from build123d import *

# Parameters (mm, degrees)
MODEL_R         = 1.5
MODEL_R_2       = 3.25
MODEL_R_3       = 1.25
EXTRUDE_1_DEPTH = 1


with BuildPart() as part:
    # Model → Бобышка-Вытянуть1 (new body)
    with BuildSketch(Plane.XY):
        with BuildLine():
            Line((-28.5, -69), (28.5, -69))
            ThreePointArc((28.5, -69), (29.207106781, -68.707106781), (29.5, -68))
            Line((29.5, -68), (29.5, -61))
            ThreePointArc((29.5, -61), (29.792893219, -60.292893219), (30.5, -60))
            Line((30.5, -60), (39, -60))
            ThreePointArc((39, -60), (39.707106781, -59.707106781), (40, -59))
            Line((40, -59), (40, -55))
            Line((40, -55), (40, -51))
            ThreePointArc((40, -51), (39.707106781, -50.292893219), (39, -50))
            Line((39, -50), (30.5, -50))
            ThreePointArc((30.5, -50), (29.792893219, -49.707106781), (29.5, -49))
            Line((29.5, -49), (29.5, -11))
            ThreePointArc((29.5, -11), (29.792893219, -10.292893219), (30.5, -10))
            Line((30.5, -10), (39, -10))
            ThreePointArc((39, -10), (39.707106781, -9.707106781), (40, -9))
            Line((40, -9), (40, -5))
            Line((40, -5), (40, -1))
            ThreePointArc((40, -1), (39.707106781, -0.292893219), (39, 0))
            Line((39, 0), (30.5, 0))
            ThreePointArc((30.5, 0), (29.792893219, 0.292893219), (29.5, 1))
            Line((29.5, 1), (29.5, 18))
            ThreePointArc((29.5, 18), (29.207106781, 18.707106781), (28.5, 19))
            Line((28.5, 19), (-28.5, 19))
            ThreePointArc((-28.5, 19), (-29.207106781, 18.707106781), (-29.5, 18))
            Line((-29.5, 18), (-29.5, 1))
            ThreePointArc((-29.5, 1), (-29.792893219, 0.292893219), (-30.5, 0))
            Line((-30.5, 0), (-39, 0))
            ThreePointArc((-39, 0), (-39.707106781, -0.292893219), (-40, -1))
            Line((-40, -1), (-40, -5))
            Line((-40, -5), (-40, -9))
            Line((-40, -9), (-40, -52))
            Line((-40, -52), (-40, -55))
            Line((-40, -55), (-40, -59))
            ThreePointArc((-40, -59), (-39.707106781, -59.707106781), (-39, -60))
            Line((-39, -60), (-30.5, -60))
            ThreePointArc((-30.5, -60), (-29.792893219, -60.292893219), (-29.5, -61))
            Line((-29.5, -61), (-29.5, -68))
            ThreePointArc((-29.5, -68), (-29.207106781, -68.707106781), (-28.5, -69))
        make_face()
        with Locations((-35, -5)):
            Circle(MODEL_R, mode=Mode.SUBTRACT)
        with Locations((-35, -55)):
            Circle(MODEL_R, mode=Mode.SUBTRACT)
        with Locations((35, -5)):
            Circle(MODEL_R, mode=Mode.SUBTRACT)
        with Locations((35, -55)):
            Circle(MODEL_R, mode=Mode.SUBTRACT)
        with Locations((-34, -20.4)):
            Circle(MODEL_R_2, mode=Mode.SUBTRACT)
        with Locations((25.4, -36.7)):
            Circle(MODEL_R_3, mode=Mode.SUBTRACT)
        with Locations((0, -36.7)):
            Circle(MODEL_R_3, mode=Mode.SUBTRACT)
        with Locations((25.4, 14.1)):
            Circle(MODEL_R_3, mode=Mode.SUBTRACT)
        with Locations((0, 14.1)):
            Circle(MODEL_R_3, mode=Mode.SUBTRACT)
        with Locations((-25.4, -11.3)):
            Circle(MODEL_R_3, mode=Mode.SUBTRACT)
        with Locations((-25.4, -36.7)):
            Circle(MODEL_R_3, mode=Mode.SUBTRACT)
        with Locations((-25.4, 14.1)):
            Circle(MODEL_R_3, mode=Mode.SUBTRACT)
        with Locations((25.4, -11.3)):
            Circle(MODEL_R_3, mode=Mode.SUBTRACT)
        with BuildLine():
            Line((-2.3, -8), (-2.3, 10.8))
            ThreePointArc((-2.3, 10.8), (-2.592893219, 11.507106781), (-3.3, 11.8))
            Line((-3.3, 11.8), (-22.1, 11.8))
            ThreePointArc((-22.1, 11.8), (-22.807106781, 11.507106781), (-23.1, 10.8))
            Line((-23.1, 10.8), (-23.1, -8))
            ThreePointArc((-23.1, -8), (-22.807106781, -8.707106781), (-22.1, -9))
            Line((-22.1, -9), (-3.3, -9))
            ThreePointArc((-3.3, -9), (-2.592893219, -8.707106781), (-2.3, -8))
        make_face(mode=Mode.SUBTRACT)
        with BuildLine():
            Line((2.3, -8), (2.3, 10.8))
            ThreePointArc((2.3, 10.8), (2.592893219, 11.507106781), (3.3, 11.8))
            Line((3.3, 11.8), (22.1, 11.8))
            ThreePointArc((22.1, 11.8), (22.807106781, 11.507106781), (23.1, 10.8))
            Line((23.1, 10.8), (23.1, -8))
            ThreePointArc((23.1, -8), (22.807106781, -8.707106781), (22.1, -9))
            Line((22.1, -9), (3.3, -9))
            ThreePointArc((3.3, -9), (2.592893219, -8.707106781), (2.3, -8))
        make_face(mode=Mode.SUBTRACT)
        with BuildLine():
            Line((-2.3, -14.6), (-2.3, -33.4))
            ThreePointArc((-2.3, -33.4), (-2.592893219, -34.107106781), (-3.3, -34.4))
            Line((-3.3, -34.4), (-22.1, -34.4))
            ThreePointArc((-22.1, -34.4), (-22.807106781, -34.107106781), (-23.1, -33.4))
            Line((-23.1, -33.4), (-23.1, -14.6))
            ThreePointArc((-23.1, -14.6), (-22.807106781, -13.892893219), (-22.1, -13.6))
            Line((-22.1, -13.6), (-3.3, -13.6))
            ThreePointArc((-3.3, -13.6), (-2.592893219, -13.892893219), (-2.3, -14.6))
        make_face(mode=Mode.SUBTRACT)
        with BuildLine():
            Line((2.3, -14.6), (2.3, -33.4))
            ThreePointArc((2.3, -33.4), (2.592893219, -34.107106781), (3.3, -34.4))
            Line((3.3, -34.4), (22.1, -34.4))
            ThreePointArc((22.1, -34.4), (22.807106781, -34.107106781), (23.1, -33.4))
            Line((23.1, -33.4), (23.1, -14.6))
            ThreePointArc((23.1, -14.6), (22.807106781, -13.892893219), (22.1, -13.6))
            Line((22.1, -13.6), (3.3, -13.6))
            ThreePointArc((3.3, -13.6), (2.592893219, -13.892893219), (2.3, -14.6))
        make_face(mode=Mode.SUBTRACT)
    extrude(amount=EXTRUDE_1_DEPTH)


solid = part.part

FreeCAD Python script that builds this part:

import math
import FreeCAD as App
import Part
import Sketcher

doc = App.newDocument("Part")
body = doc.addObject("PartDesign::Body", "Body")

# Sketch on XY plane
sketch1 = body.newObject("Sketcher::SketchObject", "Sketch")
sketch1.AttachmentSupport = (doc.getObject("XY_Plane"), [""])
sketch1.MapMode = "FlatFace"
sketch1.addGeometry(Part.LineSegment(App.Vector(-28.5, -69, 0), App.Vector(28.5, -69, 0)), False)
sketch1.addGeometry(Part.ArcOfCircle(Part.Circle(App.Vector(28.5, -68, 0), App.Vector(0, 0, 1), 1), math.radians(-90), math.radians(0)), False)
sketch1.addGeometry(Part.LineSegment(App.Vector(29.5, -68, 0), App.Vector(29.5, -61, 0)), False)
sketch1.addGeometry(Part.ArcOfCircle(Part.Circle(App.Vector(30.5, -61, 0), App.Vector(0, 0, 1), 1), math.radians(90), math.radians(180)), False)
sketch1.addGeometry(Part.LineSegment(App.Vector(30.5, -60, 0), App.Vector(39, -60, 0)), False)
sketch1.addGeometry(Part.ArcOfCircle(Part.Circle(App.Vector(39, -59, 0), App.Vector(0, 0, 1), 1), math.radians(-90), math.radians(0)), False)
sketch1.addGeometry(Part.LineSegment(App.Vector(40, -59, 0), App.Vector(40, -51, 0)), False)
sketch1.addGeometry(Part.ArcOfCircle(Part.Circle(App.Vector(39, -51, 0), App.Vector(0, 0, 1), 1), math.radians(0), math.radians(90)), False)
sketch1.addGeometry(Part.LineSegment(App.Vector(39, -50, 0), App.Vector(30.5, -50, 0)), False)
sketch1.addGeometry(Part.ArcOfCircle(Part.Circle(App.Vector(30.5, -49, 0), App.Vector(0, 0, 1), 1), math.radians(-180), math.radians(-90)), False)
sketch1.addGeometry(Part.LineSegment(App.Vector(29.5, -49, 0), App.Vector(29.5, -11, 0)), False)
sketch1.addGeometry(Part.ArcOfCircle(Part.Circle(App.Vector(30.5, -11, 0), App.Vector(0, 0, 1), 1), math.radians(90), math.radians(180)), False)
sketch1.addGeometry(Part.LineSegment(App.Vector(30.5, -10, 0), App.Vector(39, -10, 0)), False)
sketch1.addGeometry(Part.ArcOfCircle(Part.Circle(App.Vector(39, -9, 0), App.Vector(0, 0, 1), 1), math.radians(-90), math.radians(0)), False)
sketch1.addGeometry(Part.LineSegment(App.Vector(40, -9, 0), App.Vector(40, -1, 0)), False)
sketch1.addGeometry(Part.ArcOfCircle(Part.Circle(App.Vector(39, -1, 0), App.Vector(0, 0, 1), 1), math.radians(0), math.radians(90)), False)
sketch1.addGeometry(Part.LineSegment(App.Vector(39, 0, 0), App.Vector(30.5, 0, 0)), False)
sketch1.addGeometry(Part.ArcOfCircle(Part.Circle(App.Vector(30.5, 1, 0), App.Vector(0, 0, 1), 1), math.radians(-180), math.radians(-90)), False)
sketch1.addGeometry(Part.LineSegment(App.Vector(29.5, 1, 0), App.Vector(29.5, 18, 0)), False)
sketch1.addGeometry(Part.ArcOfCircle(Part.Circle(App.Vector(28.5, 18, 0), App.Vector(0, 0, 1), 1), math.radians(0), math.radians(90)), False)
sketch1.addGeometry(Part.LineSegment(App.Vector(28.5, 19, 0), App.Vector(-28.5, 19, 0)), False)
sketch1.addGeometry(Part.ArcOfCircle(Part.Circle(App.Vector(-28.5, 18, 0), App.Vector(0, 0, 1), 1), math.radians(90), math.radians(180)), False)
sketch1.addGeometry(Part.LineSegment(App.Vector(-29.5, 18, 0), App.Vector(-29.5, 1, 0)), False)
sketch1.addGeometry(Part.ArcOfCircle(Part.Circle(App.Vector(-30.5, 1, 0), App.Vector(0, 0, 1), 1), math.radians(-90), math.radians(0)), False)
sketch1.addGeometry(Part.LineSegment(App.Vector(-30.5, 0, 0), App.Vector(-39, 0, 0)), False)
sketch1.addGeometry(Part.ArcOfCircle(Part.Circle(App.Vector(-39, -1, 0), App.Vector(0, 0, 1), 1), math.radians(90), math.radians(180)), False)
sketch1.addGeometry(Part.LineSegment(App.Vector(-40, -1, 0), App.Vector(-40, -59, 0)), False)
sketch1.addGeometry(Part.ArcOfCircle(Part.Circle(App.Vector(-39, -59, 0), App.Vector(0, 0, 1), 1), math.radians(-180), math.radians(-90)), False)
sketch1.addGeometry(Part.LineSegment(App.Vector(-39, -60, 0), App.Vector(-30.5, -60, 0)), False)
sketch1.addGeometry(Part.ArcOfCircle(Part.Circle(App.Vector(-30.5, -61, 0), App.Vector(0, 0, 1), 1), math.radians(0), math.radians(90)), False)
sketch1.addGeometry(Part.LineSegment(App.Vector(-29.5, -61, 0), App.Vector(-29.5, -68, 0)), False)
sketch1.addGeometry(Part.ArcOfCircle(Part.Circle(App.Vector(-28.5, -68, 0), App.Vector(0, 0, 1), 1), math.radians(-180), math.radians(-90)), False)
sketch1.addGeometry(Part.Circle(App.Vector(-35, -55, 0), App.Vector(0, 0, 1), 1.5), False)
sketch1.addGeometry(Part.Circle(App.Vector(-25.4, -36.7, 0), App.Vector(0, 0, 1), 1.2), False)
sketch1.addGeometry(Part.ArcOfCircle(Part.Circle(App.Vector(-3.3, -14.6, 0), App.Vector(0, 0, 1), 1), math.radians(0), math.radians(90)), False)
sketch1.addGeometry(Part.LineSegment(App.Vector(-2.3, -14.6, 0), App.Vector(-2.3, -33.4, 0)), False)
sketch1.addGeometry(Part.ArcOfCircle(Part.Circle(App.Vector(-3.3, -33.4, 0), App.Vector(0, 0, 1), 1), math.radians(-90), math.radians(0)), False)
sketch1.addGeometry(Part.LineSegment(App.Vector(-3.3, -34.4, 0), App.Vector(-22.1, -34.4, 0)), False)
sketch1.addGeometry(Part.ArcOfCircle(Part.Circle(App.Vector(-22.1, -33.4, 0), App.Vector(0, 0, 1), 1), math.radians(-180), math.radians(-90)), False)
sketch1.addGeometry(Part.LineSegment(App.Vector(-23.1, -33.4, 0), App.Vector(-23.1, -14.6, 0)), False)
sketch1.addGeometry(Part.ArcOfCircle(Part.Circle(App.Vector(-22.1, -14.6, 0), App.Vector(0, 0, 1), 1), math.radians(90), math.radians(180)), False)
sketch1.addGeometry(Part.LineSegment(App.Vector(-22.1, -13.6, 0), App.Vector(-3.3, -13.6, 0)), False)
sketch1.addGeometry(Part.Circle(App.Vector(35, -55, 0), App.Vector(0, 0, 1), 1.5), False)
sketch1.addGeometry(Part.Circle(App.Vector(0, -36.7, 0), App.Vector(0, 0, 1), 1.2), False)
sketch1.addGeometry(Part.LineSegment(App.Vector(2.3, -33.4, 0), App.Vector(2.3, -14.6, 0)), False)
sketch1.addGeometry(Part.ArcOfCircle(Part.Circle(App.Vector(3.3, -14.6, 0), App.Vector(0, 0, 1), 1), math.radians(90), math.radians(180)), False)
sketch1.addGeometry(Part.LineSegment(App.Vector(3.3, -13.6, 0), App.Vector(22.1, -13.6, 0)), False)
sketch1.addGeometry(Part.ArcOfCircle(Part.Circle(App.Vector(22.1, -14.6, 0), App.Vector(0, 0, 1), 1), math.radians(0), math.radians(90)), False)
sketch1.addGeometry(Part.LineSegment(App.Vector(23.1, -14.6, 0), App.Vector(23.1, -33.4, 0)), False)
sketch1.addGeometry(Part.ArcOfCircle(Part.Circle(App.Vector(22.1, -33.4, 0), App.Vector(0, 0, 1), 1), math.radians(-90), math.radians(0)), False)
sketch1.addGeometry(Part.LineSegment(App.Vector(22.1, -34.4, 0), App.Vector(3.3, -34.4, 0)), False)
sketch1.addGeometry(Part.ArcOfCircle(Part.Circle(App.Vector(3.3, -33.4, 0), App.Vector(0, 0, 1), 1), math.radians(-180), math.radians(-90)), False)
sketch1.addGeometry(Part.Circle(App.Vector(25.4, -36.7, 0), App.Vector(0, 0, 1), 1.2), False)
sketch1.addGeometry(Part.Circle(App.Vector(-34, -20.4, 0), App.Vector(0, 0, 1), 3.2), False)
sketch1.addGeometry(Part.Circle(App.Vector(-35, -5, 0), App.Vector(0, 0, 1), 1.5), False)
sketch1.addGeometry(Part.Circle(App.Vector(-25.4, -11.3, 0), App.Vector(0, 0, 1), 1.2), False)
sketch1.addGeometry(Part.Circle(App.Vector(-25.4, 14.1, 0), App.Vector(0, 0, 1), 1.2), False)
sketch1.addGeometry(Part.LineSegment(App.Vector(-2.3, 10.8, 0), App.Vector(-2.3, -8, 0)), False)
sketch1.addGeometry(Part.ArcOfCircle(Part.Circle(App.Vector(-3.3, -8, 0), App.Vector(0, 0, 1), 1), math.radians(-90), math.radians(0)), False)
sketch1.addGeometry(Part.LineSegment(App.Vector(-3.3, -9, 0), App.Vector(-22.1, -9, 0)), False)
sketch1.addGeometry(Part.ArcOfCircle(Part.Circle(App.Vector(-22.1, -8, 0), App.Vector(0, 0, 1), 1), math.radians(-180), math.radians(-90)), False)
sketch1.addGeometry(Part.LineSegment(App.Vector(-23.1, -8, 0), App.Vector(-23.1, 10.8, 0)), False)
sketch1.addGeometry(Part.ArcOfCircle(Part.Circle(App.Vector(-22.1, 10.8, 0), App.Vector(0, 0, 1), 1), math.radians(90), math.radians(180)), False)
sketch1.addGeometry(Part.LineSegment(App.Vector(-22.1, 11.8, 0), App.Vector(-3.3, 11.8, 0)), False)
sketch1.addGeometry(Part.ArcOfCircle(Part.Circle(App.Vector(-3.3, 10.8, 0), App.Vector(0, 0, 1), 1), math.radians(0), math.radians(90)), False)
sketch1.addGeometry(Part.Circle(App.Vector(25.4, -11.3, 0), App.Vector(0, 0, 1), 1.2), False)
sketch1.addGeometry(Part.Circle(App.Vector(35, -5, 0), App.Vector(0, 0, 1), 1.5), False)
sketch1.addGeometry(Part.ArcOfCircle(Part.Circle(App.Vector(3.3, -8, 0), App.Vector(0, 0, 1), 1), math.radians(-180), math.radians(-90)), False)
sketch1.addGeometry(Part.LineSegment(App.Vector(2.3, -8, 0), App.Vector(2.3, 10.8, 0)), False)
sketch1.addGeometry(Part.ArcOfCircle(Part.Circle(App.Vector(3.3, 10.8, 0), App.Vector(0, 0, 1), 1), math.radians(90), math.radians(180)), False)
sketch1.addGeometry(Part.LineSegment(App.Vector(3.3, 11.8, 0), App.Vector(22.1, 11.8, 0)), False)
sketch1.addGeometry(Part.ArcOfCircle(Part.Circle(App.Vector(22.1, 10.8, 0), App.Vector(0, 0, 1), 1), math.radians(0), math.radians(90)), False)
sketch1.addGeometry(Part.LineSegment(App.Vector(23.1, 10.8, 0), App.Vector(23.1, -8, 0)), False)
sketch1.addGeometry(Part.ArcOfCircle(Part.Circle(App.Vector(22.1, -8, 0), App.Vector(0, 0, 1), 1), math.radians(-90), math.radians(0)), False)
sketch1.addGeometry(Part.LineSegment(App.Vector(22.1, -9, 0), App.Vector(3.3, -9, 0)), False)
sketch1.addGeometry(Part.Circle(App.Vector(0, 14.1, 0), App.Vector(0, 0, 1), 1.2), False)
sketch1.addGeometry(Part.Circle(App.Vector(25.4, 14.1, 0), App.Vector(0, 0, 1), 1.2), False)
sketch1.addConstraint(Sketcher.Constraint("Tangent", 0, 2, 1, 1))
sketch1.addConstraint(Sketcher.Constraint("Tangent", 1, 2, 2, 1))
sketch1.addConstraint(Sketcher.Constraint("Tangent", 2, 2, 3, 2))
sketch1.addConstraint(Sketcher.Constraint("Tangent", 3, 1, 4, 1))
sketch1.addConstraint(Sketcher.Constraint("Tangent", 4, 2, 5, 1))
sketch1.addConstraint(Sketcher.Constraint("Tangent", 5, 2, 6, 1))
sketch1.addConstraint(Sketcher.Constraint("Tangent", 6, 2, 7, 1))
sketch1.addConstraint(Sketcher.Constraint("Tangent", 7, 2, 8, 1))
sketch1.addConstraint(Sketcher.Constraint("Tangent", 8, 2, 9, 2))
sketch1.addConstraint(Sketcher.Constraint("Tangent", 9, 1, 10, 1))
sketch1.addConstraint(Sketcher.Constraint("Tangent", 10, 2, 11, 2))
sketch1.addConstraint(Sketcher.Constraint("Tangent", 11, 1, 12, 1))
sketch1.addConstraint(Sketcher.Constraint("Tangent", 12, 2, 13, 1))
sketch1.addConstraint(Sketcher.Constraint("Tangent", 13, 2, 14, 1))
sketch1.addConstraint(Sketcher.Constraint("Tangent", 14, 2, 15, 1))
sketch1.addConstraint(Sketcher.Constraint("Tangent", 15, 2, 16, 1))
sketch1.addConstraint(Sketcher.Constraint("Tangent", 16, 2, 17, 2))
sketch1.addConstraint(Sketcher.Constraint("Tangent", 17, 1, 18, 1))
sketch1.addConstraint(Sketcher.Constraint("Tangent", 18, 2, 19, 1))
sketch1.addConstraint(Sketcher.Constraint("Tangent", 19, 2, 20, 1))
sketch1.addConstraint(Sketcher.Constraint("Tangent", 20, 2, 21, 1))
sketch1.addConstraint(Sketcher.Constraint("Tangent", 21, 2, 22, 1))
sketch1.addConstraint(Sketcher.Constraint("Tangent", 22, 2, 23, 2))
sketch1.addConstraint(Sketcher.Constraint("Tangent", 23, 1, 24, 1))
sketch1.addConstraint(Sketcher.Constraint("Tangent", 24, 2, 25, 1))
sketch1.addConstraint(Sketcher.Constraint("Tangent", 25, 2, 26, 1))
sketch1.addConstraint(Sketcher.Constraint("Tangent", 26, 2, 27, 1))
sketch1.addConstraint(Sketcher.Constraint("Tangent", 27, 2, 28, 1))
sketch1.addConstraint(Sketcher.Constraint("Tangent", 28, 2, 29, 2))
sketch1.addConstraint(Sketcher.Constraint("Tangent", 29, 1, 30, 1))
sketch1.addConstraint(Sketcher.Constraint("Tangent", 30, 2, 31, 1))
sketch1.addConstraint(Sketcher.Constraint("Tangent", 31, 2, 0, 1))
sketch1.addConstraint(Sketcher.Constraint("Tangent", 34, 1, 35, 1))
sketch1.addConstraint(Sketcher.Constraint("Tangent", 35, 2, 36, 2))
sketch1.addConstraint(Sketcher.Constraint("Tangent", 36, 1, 37, 1))
sketch1.addConstraint(Sketcher.Constraint("Tangent", 37, 2, 38, 2))
sketch1.addConstraint(Sketcher.Constraint("Tangent", 38, 1, 39, 1))
sketch1.addConstraint(Sketcher.Constraint("Tangent", 39, 2, 40, 2))
sketch1.addConstraint(Sketcher.Constraint("Tangent", 40, 1, 41, 1))
sketch1.addConstraint(Sketcher.Constraint("Tangent", 41, 2, 34, 2))
sketch1.addConstraint(Sketcher.Constraint("Tangent", 44, 2, 45, 2))
sketch1.addConstraint(Sketcher.Constraint("Tangent", 45, 1, 46, 1))
sketch1.addConstraint(Sketcher.Constraint("Tangent", 46, 2, 47, 2))
sketch1.addConstraint(Sketcher.Constraint("Tangent", 47, 1, 48, 1))
sketch1.addConstraint(Sketcher.Constraint("Tangent", 48, 2, 49, 2))
sketch1.addConstraint(Sketcher.Constraint("Tangent", 49, 1, 50, 1))
sketch1.addConstraint(Sketcher.Constraint("Tangent", 50, 2, 51, 2))
sketch1.addConstraint(Sketcher.Constraint("Tangent", 51, 1, 44, 1))
sketch1.addConstraint(Sketcher.Constraint("Tangent", 57, 2, 58, 2))
sketch1.addConstraint(Sketcher.Constraint("Tangent", 58, 1, 59, 1))
sketch1.addConstraint(Sketcher.Constraint("Tangent", 59, 2, 60, 2))
sketch1.addConstraint(Sketcher.Constraint("Tangent", 60, 1, 61, 1))
sketch1.addConstraint(Sketcher.Constraint("Tangent", 61, 2, 62, 2))
sketch1.addConstraint(Sketcher.Constraint("Tangent", 62, 1, 63, 1))
sketch1.addConstraint(Sketcher.Constraint("Tangent", 63, 2, 64, 2))
sketch1.addConstraint(Sketcher.Constraint("Tangent", 64, 1, 57, 1))
sketch1.addConstraint(Sketcher.Constraint("Tangent", 67, 1, 68, 1))
sketch1.addConstraint(Sketcher.Constraint("Tangent", 68, 2, 69, 2))
sketch1.addConstraint(Sketcher.Constraint("Tangent", 69, 1, 70, 1))
sketch1.addConstraint(Sketcher.Constraint("Tangent", 70, 2, 71, 2))
sketch1.addConstraint(Sketcher.Constraint("Tangent", 71, 1, 72, 1))
sketch1.addConstraint(Sketcher.Constraint("Tangent", 72, 2, 73, 2))
sketch1.addConstraint(Sketcher.Constraint("Tangent", 73, 1, 74, 1))
sketch1.addConstraint(Sketcher.Constraint("Tangent", 74, 2, 67, 2))
sketch1.addConstraint(Sketcher.Constraint("Horizontal", 0))
sketch1.addConstraint(Sketcher.Constraint("Vertical", 2))
sketch1.addConstraint(Sketcher.Constraint("Horizontal", 4))
sketch1.addConstraint(Sketcher.Constraint("Vertical", 6))
sketch1.addConstraint(Sketcher.Constraint("Horizontal", 8))
sketch1.addConstraint(Sketcher.Constraint("Vertical", 10))
sketch1.addConstraint(Sketcher.Constraint("Horizontal", 12))
sketch1.addConstraint(Sketcher.Constraint("Vertical", 14))
sketch1.addConstraint(Sketcher.Constraint("Horizontal", 16))
sketch1.addConstraint(Sketcher.Constraint("Vertical", 18))
sketch1.addConstraint(Sketcher.Constraint("Horizontal", 20))
sketch1.addConstraint(Sketcher.Constraint("Vertical", 22))
sketch1.addConstraint(Sketcher.Constraint("Horizontal", 24))
sketch1.addConstraint(Sketcher.Constraint("Vertical", 26))
sketch1.addConstraint(Sketcher.Constraint("Horizontal", 28))
sketch1.addConstraint(Sketcher.Constraint("Vertical", 30))
sketch1.addConstraint(Sketcher.Constraint("Vertical", 35))
sketch1.addConstraint(Sketcher.Constraint("Horizontal", 37))
sketch1.addConstraint(Sketcher.Constraint("Vertical", 39))
sketch1.addConstraint(Sketcher.Constraint("Horizontal", 41))
sketch1.addConstraint(Sketcher.Constraint("Vertical", 44))
sketch1.addConstraint(Sketcher.Constraint("Horizontal", 46))
sketch1.addConstraint(Sketcher.Constraint("Vertical", 48))
sketch1.addConstraint(Sketcher.Constraint("Horizontal", 50))
sketch1.addConstraint(Sketcher.Constraint("Vertical", 57))
sketch1.addConstraint(Sketcher.Constraint("Horizontal", 59))
sketch1.addConstraint(Sketcher.Constraint("Vertical", 61))
sketch1.addConstraint(Sketcher.Constraint("Horizontal", 63))
sketch1.addConstraint(Sketcher.Constraint("Vertical", 68))
sketch1.addConstraint(Sketcher.Constraint("Horizontal", 70))
sketch1.addConstraint(Sketcher.Constraint("Vertical", 72))
sketch1.addConstraint(Sketcher.Constraint("Horizontal", 74))
sketch1.addConstraint(Sketcher.Constraint("Equal", 1, 3))
sketch1.addConstraint(Sketcher.Constraint("Equal", 3, 5))
sketch1.addConstraint(Sketcher.Constraint("Equal", 5, 7))
sketch1.addConstraint(Sketcher.Constraint("Equal", 7, 9))
sketch1.addConstraint(Sketcher.Constraint("Equal", 9, 11))
sketch1.addConstraint(Sketcher.Constraint("Equal", 11, 13))
sketch1.addConstraint(Sketcher.Constraint("Equal", 13, 15))
sketch1.addConstraint(Sketcher.Constraint("Equal", 15, 17))
sketch1.addConstraint(Sketcher.Constraint("Equal", 17, 19))
sketch1.addConstraint(Sketcher.Constraint("Equal", 19, 21))
sketch1.addConstraint(Sketcher.Constraint("Equal", 21, 23))
sketch1.addConstraint(Sketcher.Constraint("Equal", 23, 25))
sketch1.addConstraint(Sketcher.Constraint("Equal", 25, 27))
sketch1.addConstraint(Sketcher.Constraint("Equal", 27, 29))
sketch1.addConstraint(Sketcher.Constraint("Equal", 29, 31))
sketch1.addConstraint(Sketcher.Constraint("Equal", 31, 34))
sketch1.addConstraint(Sketcher.Constraint("Equal", 34, 36))
sketch1.addConstraint(Sketcher.Constraint("Equal", 36, 38))
sketch1.addConstraint(Sketcher.Constraint("Equal", 38, 40))
sketch1.addConstraint(Sketcher.Constraint("Equal", 32, 42))
sketch1.addConstraint(Sketcher.Constraint("Equal", 33, 43))
sketch1.addConstraint(Sketcher.Constraint("Equal", 40, 45))
sketch1.addConstraint(Sketcher.Constraint("Equal", 45, 47))
sketch1.addConstraint(Sketcher.Constraint("Equal", 47, 49))
sketch1.addConstraint(Sketcher.Constraint("Equal", 49, 51))
sketch1.addConstraint(Sketcher.Constraint("Equal", 43, 52))
sketch1.addConstraint(Sketcher.Constraint("Equal", 42, 54))
sketch1.addConstraint(Sketcher.Constraint("Equal", 52, 55))
sketch1.addConstraint(Sketcher.Constraint("Equal", 55, 56))
sketch1.addConstraint(Sketcher.Constraint("Equal", 51, 58))
sketch1.addConstraint(Sketcher.Constraint("Equal", 58, 60))
sketch1.addConstraint(Sketcher.Constraint("Equal", 60, 62))
sketch1.addConstraint(Sketcher.Constraint("Equal", 62, 64))
sketch1.addConstraint(Sketcher.Constraint("Equal", 56, 65))
sketch1.addConstraint(Sketcher.Constraint("Equal", 54, 66))
sketch1.addConstraint(Sketcher.Constraint("Equal", 64, 67))
sketch1.addConstraint(Sketcher.Constraint("Equal", 67, 69))
sketch1.addConstraint(Sketcher.Constraint("Equal", 69, 71))
sketch1.addConstraint(Sketcher.Constraint("Equal", 71, 73))
sketch1.addConstraint(Sketcher.Constraint("Equal", 65, 75))
sketch1.addConstraint(Sketcher.Constraint("Equal", 75, 76))
sketch1.addConstraint(Sketcher.Constraint("Symmetric", 16, 2, 23, 1, -1, 1))
sketch1.addConstraint(Sketcher.Constraint("Symmetric", 15, 3, 25, 3, -2))
sketch1.addConstraint(Sketcher.Constraint("Symmetric", 5, 3, 27, 3, -2))
sketch1.addConstraint(Sketcher.Constraint("Symmetric", 32, 3, 42, 3, -2))
sketch1.addConstraint(Sketcher.Constraint("Symmetric", 34, 3, 45, 3, -2))
sketch1.addConstraint(Sketcher.Constraint("Symmetric", 38, 3, 49, 3, -2))
sketch1.addConstraint(Sketcher.Constraint("Symmetric", 33, 3, 52, 3, -2))
sketch1.addConstraint(Sketcher.Constraint("Symmetric", 55, 3, 65, 3, -2))
sketch1.addConstraint(Sketcher.Constraint("Symmetric", 54, 3, 66, 3, -2))
sketch1.addConstraint(Sketcher.Constraint("Symmetric", 58, 3, 67, 3, -2))
sketch1.addConstraint(Sketcher.Constraint("Symmetric", 62, 3, 71, 3, -2))
sketch1.addConstraint(Sketcher.Constraint("Symmetric", 56, 3, 76, 3, -2))
sketch1.addConstraint(Sketcher.Constraint("PointOnObject", 43, 3, -2))
sketch1.addConstraint(Sketcher.Constraint("PointOnObject", 75, 3, -2))
sketch1.addConstraint(Sketcher.Constraint("Horizontal", 33, 3, 43, 3))
sketch1.addConstraint(Sketcher.Constraint("Horizontal", 56, 3, 75, 3))
sketch1.addConstraint(Sketcher.Constraint("Horizontal", 13, 2, 58, 1))
sketch1.addConstraint(Sketcher.Constraint("Vertical", 3, 3, 9, 3))
sketch1.addConstraint(Sketcher.Constraint("Vertical", 11, 3, 17, 3))
sketch1.addConstraint(Sketcher.Constraint("Vertical", 23, 3, 29, 3))
sketch1.addConstraint(Sketcher.Constraint("Vertical", 32, 3, 54, 3))
sketch1.addConstraint(Sketcher.Constraint("Vertical", 33, 3, 55, 3))
sketch1.addConstraint(Sketcher.Constraint("Vertical", 55, 3, 56, 3))
sketch1.addConstraint(Sketcher.Constraint("Vertical", 36, 3, 58, 3))
sketch1.addConstraint(Sketcher.Constraint("Vertical", 40, 3, 60, 3))
sketch1.addConstraint(Sketcher.Constraint("Equal", 6, 14))
sketch1.addConstraint(Sketcher.Constraint("Equal", 74, 35))
sketch1.addConstraint(Sketcher.Constraint("Equal", 48, 57))
sketch1.addConstraint(Sketcher.Constraint("Diameter", 32, 3.0))
sketch1.addConstraint(Sketcher.Constraint("Radius", 1, 1.0))
sketch1.addConstraint(Sketcher.Constraint("Diameter", 33, 2.5))
sketch1.addConstraint(Sketcher.Constraint("Diameter", 53, 6.5))
sketch1.addConstraint(Sketcher.Constraint("DistanceX", 0, 1, 0, 2, 57.0))
sketch1.addConstraint(Sketcher.Constraint("DistanceY", 2, 1, 2, 2, 7.0))
sketch1.addConstraint(Sketcher.Constraint("DistanceY", 6, 1, 6, 2, 8.0))
sketch1.addConstraint(Sketcher.Constraint("DistanceY", 10, 1, 10, 2, 38.0))
sketch1.addConstraint(Sketcher.Constraint("DistanceY", 18, 1, 18, 2, 17.0))
sketch1.addConstraint(Sketcher.Constraint("DistanceX", 4, 1, 4, 2, 8.5))
sketch1.addConstraint(Sketcher.Constraint("DistanceX", 37, 2, 37, 1, 18.8))
sketch1.addConstraint(Sketcher.Constraint("DistanceX", 32, 3, -1, 1, 35.0))
sketch1.addConstraint(Sketcher.Constraint("DistanceY", 32, 3, -1, 1, 55.0))
sketch1.addConstraint(Sketcher.Constraint("DistanceX", 53, 3, -1, 1, 34.0))
sketch1.addConstraint(Sketcher.Constraint("DistanceY", 54, 3, -1, 1, 5.0))
sketch1.addConstraint(Sketcher.Constraint("DistanceX", 33, 3, -1, 1, 25.4))
sketch1.addConstraint(Sketcher.Constraint("DistanceY", 33, 3, -1, 1, 36.7))
sketch1.addConstraint(Sketcher.Constraint("DistanceX", 34, 3, -1, 1, 3.3))
sketch1.addConstraint(Sketcher.Constraint("DistanceY", 34, 3, -1, 1, 14.6))
sketch1.addConstraint(Sketcher.Constraint("DistanceY", 53, 3, -1, 1, 20.4))
sketch1.addConstraint(Sketcher.Constraint("DistanceY", 55, 3, -1, 1, 11.3))
sketch1.addConstraint(Sketcher.Constraint("DistanceY", -1, 1, 56, 3, 14.1))
pad1 = body.newObject("PartDesign::Pad", "Pad")
pad1.Profile = sketch1
pad1.Length = 1

doc.recompute()
